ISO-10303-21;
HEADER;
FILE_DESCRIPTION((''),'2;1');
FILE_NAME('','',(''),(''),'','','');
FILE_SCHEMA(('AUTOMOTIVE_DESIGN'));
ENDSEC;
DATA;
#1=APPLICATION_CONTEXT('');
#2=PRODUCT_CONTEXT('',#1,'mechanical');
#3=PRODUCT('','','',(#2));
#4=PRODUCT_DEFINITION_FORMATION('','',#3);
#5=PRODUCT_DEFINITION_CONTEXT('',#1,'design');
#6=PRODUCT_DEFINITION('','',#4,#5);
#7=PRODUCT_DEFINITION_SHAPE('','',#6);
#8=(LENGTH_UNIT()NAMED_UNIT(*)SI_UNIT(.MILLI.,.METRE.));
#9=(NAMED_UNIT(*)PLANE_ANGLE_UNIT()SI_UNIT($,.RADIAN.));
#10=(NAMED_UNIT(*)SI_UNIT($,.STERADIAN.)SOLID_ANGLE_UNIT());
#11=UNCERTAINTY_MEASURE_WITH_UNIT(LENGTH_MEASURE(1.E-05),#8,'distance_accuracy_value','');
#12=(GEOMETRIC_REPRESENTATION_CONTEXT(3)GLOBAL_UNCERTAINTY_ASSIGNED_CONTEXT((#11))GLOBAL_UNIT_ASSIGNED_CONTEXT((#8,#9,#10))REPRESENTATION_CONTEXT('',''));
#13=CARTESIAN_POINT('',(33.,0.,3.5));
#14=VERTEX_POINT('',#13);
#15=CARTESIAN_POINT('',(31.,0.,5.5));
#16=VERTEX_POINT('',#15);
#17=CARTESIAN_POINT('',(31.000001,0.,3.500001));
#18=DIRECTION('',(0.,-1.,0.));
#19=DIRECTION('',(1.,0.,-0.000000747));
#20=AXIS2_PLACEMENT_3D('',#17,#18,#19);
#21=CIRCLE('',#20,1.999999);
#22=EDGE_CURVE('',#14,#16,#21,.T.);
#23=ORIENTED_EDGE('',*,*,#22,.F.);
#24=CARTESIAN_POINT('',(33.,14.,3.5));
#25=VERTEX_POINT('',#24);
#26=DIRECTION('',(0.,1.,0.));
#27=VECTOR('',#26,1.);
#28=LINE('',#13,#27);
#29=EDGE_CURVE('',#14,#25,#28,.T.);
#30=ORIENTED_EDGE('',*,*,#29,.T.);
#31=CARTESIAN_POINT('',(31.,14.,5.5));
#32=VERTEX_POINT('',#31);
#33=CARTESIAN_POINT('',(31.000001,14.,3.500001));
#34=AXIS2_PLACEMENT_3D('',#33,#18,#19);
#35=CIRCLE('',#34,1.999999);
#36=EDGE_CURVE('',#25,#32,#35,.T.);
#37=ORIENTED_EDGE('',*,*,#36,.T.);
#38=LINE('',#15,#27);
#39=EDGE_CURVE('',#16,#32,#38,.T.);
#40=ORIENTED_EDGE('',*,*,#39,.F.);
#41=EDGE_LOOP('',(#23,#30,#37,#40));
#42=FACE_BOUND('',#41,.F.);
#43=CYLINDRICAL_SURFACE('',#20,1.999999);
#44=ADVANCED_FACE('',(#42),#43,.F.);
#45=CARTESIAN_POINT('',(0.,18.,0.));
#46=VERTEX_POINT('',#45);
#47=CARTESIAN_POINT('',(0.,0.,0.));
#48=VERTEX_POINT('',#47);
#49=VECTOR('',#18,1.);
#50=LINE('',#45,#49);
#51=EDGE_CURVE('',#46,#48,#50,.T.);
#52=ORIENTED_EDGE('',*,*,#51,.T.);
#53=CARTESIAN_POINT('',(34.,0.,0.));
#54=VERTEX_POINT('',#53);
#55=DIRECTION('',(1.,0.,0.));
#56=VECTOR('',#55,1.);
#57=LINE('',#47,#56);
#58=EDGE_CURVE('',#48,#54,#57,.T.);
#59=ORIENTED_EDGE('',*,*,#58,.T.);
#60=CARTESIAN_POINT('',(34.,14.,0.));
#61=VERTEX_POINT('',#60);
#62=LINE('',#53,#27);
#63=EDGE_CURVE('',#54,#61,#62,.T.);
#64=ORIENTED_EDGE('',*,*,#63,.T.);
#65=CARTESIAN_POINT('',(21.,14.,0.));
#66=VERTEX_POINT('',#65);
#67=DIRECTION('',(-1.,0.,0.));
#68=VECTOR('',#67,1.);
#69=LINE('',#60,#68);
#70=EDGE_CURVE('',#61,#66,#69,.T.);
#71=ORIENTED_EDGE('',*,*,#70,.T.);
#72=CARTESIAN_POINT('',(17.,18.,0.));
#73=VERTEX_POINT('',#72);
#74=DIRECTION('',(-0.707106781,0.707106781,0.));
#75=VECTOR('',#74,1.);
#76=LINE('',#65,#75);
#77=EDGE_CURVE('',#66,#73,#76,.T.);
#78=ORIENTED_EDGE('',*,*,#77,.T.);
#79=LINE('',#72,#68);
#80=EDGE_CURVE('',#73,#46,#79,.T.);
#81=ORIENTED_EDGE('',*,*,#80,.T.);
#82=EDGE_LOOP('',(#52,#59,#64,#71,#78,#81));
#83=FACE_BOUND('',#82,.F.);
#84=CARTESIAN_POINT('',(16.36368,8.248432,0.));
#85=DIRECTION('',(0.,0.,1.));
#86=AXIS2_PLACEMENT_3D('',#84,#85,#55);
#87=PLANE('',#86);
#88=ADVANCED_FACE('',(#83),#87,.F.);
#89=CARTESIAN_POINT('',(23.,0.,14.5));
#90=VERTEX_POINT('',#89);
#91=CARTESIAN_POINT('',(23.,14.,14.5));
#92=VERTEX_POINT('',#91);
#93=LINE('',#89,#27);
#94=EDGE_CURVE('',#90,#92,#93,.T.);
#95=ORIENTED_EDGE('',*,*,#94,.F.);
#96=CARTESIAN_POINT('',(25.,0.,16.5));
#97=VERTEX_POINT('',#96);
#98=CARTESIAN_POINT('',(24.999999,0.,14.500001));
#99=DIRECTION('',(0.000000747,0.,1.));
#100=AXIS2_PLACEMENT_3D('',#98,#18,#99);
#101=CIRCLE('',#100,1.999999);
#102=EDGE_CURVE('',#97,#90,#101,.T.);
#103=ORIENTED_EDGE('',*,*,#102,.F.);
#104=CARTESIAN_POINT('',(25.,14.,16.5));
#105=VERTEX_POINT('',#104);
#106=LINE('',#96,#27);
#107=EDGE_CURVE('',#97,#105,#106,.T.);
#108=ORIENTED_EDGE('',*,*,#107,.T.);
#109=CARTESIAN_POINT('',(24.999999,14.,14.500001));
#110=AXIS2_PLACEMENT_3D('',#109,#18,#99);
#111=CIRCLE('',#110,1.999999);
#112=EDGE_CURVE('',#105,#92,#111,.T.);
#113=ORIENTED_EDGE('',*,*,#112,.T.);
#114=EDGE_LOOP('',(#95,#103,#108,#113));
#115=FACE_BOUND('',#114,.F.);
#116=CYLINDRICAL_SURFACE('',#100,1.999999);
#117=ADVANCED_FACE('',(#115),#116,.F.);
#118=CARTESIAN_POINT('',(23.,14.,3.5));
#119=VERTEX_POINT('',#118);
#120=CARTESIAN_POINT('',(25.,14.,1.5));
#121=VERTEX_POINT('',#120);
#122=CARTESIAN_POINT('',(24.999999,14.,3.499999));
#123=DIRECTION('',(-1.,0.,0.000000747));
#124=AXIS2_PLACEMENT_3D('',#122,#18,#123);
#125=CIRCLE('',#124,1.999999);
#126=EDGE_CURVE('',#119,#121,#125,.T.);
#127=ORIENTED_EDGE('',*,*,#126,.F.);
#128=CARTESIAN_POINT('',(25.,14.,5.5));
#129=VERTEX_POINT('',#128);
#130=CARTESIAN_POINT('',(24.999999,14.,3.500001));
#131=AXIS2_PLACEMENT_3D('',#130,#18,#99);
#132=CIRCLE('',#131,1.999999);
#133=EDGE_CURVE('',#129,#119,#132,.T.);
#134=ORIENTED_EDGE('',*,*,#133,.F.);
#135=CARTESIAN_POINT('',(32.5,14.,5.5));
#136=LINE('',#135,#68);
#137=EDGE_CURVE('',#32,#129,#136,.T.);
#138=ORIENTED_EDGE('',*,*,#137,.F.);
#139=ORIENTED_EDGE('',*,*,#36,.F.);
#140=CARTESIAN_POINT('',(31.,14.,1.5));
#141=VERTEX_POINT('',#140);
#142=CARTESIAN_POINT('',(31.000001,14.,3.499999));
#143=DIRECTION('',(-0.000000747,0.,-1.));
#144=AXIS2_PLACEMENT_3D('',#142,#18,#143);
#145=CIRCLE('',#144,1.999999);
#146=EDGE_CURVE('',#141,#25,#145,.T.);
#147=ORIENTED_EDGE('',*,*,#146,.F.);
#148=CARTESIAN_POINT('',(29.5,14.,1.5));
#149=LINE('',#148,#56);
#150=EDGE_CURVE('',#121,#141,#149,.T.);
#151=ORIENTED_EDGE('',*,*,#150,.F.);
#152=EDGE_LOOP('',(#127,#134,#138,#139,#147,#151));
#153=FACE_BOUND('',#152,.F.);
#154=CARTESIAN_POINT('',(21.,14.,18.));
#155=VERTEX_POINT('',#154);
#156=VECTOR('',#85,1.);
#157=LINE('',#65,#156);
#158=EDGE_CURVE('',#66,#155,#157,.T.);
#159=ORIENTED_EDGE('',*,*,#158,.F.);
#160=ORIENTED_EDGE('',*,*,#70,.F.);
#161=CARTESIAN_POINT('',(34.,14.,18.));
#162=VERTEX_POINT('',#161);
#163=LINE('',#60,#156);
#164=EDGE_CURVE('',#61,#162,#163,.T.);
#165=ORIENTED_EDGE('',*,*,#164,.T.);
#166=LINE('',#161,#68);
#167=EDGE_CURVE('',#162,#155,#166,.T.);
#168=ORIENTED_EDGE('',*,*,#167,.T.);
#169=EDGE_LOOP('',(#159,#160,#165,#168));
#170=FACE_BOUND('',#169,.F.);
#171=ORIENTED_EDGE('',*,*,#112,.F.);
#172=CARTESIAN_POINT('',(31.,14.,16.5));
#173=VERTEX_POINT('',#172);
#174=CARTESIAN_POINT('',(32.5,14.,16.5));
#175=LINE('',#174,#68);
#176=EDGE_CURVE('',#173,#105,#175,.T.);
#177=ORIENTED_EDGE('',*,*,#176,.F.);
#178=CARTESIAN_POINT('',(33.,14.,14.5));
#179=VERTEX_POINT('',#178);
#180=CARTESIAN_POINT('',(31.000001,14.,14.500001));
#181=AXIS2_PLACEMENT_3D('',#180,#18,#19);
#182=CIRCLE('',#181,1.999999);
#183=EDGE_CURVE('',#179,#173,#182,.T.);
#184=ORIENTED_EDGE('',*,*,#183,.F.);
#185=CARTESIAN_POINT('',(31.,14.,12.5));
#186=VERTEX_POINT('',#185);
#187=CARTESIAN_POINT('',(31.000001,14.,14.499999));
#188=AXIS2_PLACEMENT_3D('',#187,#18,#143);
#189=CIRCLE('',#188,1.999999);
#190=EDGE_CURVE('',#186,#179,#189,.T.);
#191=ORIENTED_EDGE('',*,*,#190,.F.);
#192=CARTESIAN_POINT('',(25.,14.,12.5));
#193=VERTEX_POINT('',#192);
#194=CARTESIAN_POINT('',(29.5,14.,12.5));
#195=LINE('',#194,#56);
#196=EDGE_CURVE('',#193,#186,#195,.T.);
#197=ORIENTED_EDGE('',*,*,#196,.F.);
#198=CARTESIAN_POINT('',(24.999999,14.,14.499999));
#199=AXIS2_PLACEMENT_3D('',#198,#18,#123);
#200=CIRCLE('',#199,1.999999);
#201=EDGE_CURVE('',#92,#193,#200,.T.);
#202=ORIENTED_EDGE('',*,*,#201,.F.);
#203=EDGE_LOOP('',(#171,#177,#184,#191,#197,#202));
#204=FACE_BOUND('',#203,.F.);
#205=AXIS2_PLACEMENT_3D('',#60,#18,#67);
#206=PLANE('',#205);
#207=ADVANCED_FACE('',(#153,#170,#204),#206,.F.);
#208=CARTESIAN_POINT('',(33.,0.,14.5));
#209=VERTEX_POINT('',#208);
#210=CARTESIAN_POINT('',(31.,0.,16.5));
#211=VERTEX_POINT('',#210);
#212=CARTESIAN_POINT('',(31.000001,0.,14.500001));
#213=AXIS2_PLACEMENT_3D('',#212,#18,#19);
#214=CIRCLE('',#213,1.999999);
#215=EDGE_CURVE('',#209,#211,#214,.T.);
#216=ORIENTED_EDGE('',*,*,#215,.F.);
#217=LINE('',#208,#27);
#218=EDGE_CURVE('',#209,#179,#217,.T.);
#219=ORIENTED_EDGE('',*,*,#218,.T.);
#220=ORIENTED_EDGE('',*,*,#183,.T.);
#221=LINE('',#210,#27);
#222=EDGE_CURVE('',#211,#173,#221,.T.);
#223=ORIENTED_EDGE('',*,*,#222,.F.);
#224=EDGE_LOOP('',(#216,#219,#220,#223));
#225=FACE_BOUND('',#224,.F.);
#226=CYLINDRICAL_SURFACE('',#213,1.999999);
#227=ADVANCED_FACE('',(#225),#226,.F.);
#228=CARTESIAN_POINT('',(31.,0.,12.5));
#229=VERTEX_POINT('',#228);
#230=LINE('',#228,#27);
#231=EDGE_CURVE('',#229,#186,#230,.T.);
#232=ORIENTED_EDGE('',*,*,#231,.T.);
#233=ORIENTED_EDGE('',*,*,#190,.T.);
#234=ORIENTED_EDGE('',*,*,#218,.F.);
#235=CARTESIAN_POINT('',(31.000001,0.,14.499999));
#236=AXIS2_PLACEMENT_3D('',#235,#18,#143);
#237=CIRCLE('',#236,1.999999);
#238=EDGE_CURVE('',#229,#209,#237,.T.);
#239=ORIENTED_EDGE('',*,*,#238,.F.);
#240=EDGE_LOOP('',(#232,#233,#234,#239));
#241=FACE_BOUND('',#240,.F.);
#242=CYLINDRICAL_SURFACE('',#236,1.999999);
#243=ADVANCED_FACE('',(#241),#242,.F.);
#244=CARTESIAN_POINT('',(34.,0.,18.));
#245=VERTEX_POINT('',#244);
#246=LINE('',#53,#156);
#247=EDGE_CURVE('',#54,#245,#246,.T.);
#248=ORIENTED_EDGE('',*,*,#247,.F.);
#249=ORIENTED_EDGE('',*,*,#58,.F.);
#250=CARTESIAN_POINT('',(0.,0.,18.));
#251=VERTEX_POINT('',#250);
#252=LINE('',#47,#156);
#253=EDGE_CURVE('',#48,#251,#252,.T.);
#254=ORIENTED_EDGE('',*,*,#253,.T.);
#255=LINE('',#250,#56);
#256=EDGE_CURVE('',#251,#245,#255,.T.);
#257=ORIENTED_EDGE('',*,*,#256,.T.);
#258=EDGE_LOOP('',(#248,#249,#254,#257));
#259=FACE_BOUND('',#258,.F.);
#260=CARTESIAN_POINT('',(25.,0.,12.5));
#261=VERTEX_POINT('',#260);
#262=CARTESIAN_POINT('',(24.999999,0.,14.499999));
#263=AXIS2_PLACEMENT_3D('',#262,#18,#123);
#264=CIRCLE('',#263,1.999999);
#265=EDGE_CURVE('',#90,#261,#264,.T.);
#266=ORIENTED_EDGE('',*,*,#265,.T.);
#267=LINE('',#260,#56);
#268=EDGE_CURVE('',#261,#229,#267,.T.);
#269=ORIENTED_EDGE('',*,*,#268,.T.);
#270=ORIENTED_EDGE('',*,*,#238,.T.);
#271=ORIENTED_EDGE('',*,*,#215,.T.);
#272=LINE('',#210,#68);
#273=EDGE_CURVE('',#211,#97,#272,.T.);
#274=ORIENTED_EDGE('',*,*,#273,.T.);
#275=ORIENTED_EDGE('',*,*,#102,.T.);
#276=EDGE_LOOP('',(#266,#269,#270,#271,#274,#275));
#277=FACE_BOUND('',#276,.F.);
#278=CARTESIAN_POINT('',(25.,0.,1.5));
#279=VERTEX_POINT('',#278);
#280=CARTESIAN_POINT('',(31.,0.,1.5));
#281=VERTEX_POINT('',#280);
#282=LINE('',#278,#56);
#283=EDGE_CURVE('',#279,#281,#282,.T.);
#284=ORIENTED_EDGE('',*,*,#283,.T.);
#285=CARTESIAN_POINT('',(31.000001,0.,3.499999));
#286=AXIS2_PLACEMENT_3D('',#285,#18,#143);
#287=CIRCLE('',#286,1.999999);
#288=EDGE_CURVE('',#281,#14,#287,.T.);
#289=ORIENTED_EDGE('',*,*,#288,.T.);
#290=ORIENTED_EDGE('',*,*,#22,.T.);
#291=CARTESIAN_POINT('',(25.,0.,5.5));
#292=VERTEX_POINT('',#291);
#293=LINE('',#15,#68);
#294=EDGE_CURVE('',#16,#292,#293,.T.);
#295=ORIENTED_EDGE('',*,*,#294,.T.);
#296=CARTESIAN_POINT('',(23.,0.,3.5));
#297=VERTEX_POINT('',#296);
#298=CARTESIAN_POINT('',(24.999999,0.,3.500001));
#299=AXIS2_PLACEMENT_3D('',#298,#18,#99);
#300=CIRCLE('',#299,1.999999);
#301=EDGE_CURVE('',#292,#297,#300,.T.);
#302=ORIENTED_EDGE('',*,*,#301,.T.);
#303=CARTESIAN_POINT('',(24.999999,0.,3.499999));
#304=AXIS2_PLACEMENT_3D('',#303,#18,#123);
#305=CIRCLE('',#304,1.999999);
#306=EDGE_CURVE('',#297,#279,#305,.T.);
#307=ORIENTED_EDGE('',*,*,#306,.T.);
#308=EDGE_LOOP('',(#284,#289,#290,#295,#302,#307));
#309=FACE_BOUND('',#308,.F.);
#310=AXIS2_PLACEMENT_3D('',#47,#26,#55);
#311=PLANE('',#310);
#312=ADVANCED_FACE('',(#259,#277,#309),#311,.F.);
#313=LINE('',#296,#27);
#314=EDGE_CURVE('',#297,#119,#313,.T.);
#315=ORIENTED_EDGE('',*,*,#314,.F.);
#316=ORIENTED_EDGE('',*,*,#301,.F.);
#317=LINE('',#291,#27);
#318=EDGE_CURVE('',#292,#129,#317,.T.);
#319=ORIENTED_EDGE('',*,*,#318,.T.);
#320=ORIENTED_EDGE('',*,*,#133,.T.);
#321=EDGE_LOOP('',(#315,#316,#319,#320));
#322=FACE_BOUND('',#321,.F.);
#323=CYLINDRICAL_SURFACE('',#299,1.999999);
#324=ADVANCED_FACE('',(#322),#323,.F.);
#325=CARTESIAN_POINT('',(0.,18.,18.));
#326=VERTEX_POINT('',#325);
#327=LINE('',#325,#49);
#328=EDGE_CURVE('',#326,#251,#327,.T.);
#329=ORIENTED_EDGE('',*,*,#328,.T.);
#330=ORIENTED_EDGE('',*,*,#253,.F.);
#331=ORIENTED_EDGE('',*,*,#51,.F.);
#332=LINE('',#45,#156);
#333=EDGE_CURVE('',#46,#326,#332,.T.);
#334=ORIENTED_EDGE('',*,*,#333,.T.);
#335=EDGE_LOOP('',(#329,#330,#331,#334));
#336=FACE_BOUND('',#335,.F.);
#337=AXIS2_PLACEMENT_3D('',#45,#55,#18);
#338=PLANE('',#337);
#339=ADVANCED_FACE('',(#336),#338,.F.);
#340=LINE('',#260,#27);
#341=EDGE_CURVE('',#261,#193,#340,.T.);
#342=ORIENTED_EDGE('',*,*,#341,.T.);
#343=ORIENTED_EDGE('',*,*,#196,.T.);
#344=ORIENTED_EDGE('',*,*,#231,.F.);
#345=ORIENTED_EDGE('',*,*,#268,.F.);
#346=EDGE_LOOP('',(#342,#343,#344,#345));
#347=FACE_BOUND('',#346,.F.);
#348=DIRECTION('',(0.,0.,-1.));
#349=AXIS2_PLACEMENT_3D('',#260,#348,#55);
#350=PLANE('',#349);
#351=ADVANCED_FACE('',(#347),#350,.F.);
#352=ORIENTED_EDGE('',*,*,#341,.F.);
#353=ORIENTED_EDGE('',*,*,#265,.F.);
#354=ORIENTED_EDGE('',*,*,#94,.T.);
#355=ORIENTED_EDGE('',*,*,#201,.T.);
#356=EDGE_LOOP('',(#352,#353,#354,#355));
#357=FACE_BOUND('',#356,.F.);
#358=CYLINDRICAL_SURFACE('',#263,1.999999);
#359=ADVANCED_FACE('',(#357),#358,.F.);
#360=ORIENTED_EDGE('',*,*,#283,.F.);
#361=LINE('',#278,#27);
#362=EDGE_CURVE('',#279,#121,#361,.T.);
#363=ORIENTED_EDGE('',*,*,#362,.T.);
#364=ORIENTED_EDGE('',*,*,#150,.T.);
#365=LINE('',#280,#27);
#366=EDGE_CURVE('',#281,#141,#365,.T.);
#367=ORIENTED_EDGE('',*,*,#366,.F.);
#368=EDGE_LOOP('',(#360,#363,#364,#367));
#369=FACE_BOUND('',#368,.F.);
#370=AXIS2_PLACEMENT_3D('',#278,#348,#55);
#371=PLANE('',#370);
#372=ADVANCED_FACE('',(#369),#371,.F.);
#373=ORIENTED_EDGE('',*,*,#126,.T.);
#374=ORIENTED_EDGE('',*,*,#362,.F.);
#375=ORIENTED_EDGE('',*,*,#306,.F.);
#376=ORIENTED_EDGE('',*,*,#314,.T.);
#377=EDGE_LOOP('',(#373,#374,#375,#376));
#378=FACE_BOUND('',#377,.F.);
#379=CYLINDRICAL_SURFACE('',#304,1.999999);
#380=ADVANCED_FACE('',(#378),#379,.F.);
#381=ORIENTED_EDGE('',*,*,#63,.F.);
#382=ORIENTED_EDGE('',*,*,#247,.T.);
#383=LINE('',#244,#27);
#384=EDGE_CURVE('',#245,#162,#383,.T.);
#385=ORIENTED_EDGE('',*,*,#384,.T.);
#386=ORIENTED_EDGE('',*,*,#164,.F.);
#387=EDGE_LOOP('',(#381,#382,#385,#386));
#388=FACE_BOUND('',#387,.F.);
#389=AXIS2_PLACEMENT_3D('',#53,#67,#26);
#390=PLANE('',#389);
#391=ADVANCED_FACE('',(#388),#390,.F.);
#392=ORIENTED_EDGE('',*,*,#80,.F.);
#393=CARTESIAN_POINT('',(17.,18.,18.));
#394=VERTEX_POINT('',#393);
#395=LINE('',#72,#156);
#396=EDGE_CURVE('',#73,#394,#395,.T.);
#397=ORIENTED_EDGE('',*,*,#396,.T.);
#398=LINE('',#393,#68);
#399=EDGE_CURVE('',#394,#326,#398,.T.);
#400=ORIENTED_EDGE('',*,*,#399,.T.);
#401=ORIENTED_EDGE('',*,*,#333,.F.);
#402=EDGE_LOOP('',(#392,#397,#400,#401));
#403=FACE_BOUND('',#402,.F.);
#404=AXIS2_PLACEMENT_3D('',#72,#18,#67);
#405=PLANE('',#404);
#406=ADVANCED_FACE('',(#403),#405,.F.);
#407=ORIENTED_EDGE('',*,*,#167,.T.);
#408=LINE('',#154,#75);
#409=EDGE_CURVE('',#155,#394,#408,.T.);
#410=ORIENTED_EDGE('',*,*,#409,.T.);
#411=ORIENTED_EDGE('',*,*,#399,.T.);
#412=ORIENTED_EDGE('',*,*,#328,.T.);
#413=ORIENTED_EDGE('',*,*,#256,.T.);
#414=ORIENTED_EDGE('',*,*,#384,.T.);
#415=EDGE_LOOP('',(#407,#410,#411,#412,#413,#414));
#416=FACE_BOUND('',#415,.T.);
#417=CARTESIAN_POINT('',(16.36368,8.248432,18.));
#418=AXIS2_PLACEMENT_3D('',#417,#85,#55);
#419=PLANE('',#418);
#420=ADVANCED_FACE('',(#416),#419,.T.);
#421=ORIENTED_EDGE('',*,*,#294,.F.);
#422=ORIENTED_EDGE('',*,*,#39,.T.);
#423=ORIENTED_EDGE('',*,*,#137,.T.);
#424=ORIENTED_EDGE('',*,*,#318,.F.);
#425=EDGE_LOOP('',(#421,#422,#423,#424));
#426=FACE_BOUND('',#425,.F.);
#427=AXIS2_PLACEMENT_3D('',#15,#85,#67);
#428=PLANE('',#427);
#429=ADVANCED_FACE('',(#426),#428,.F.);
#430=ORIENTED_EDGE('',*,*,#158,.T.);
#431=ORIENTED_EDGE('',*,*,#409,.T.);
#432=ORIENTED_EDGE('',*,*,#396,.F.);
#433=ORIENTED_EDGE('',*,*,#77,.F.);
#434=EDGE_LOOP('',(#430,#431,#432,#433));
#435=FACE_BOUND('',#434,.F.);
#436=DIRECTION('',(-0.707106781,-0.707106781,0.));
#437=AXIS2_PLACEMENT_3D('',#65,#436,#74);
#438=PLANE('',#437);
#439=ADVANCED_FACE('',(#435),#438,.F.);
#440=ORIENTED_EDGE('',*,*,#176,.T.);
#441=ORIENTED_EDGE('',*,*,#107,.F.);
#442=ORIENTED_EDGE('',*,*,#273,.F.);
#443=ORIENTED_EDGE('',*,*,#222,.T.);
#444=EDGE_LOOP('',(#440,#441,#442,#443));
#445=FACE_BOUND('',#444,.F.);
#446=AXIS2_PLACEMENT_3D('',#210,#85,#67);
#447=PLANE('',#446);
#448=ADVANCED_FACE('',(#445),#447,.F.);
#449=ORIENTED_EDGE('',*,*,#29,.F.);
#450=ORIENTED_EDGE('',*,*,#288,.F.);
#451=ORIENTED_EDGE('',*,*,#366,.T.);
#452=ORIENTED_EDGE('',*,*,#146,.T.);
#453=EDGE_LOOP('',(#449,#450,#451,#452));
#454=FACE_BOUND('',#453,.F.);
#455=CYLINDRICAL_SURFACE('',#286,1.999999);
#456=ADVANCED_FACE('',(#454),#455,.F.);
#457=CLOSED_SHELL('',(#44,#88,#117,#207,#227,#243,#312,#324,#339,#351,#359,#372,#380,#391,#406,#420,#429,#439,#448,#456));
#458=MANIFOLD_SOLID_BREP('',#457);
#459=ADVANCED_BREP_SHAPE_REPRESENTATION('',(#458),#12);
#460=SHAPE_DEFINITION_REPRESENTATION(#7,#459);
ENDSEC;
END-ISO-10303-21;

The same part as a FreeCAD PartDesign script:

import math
import FreeCAD as App
import Part
import Sketcher
from FreeCAD import Vector
Q = App.Units.Quantity


def add_polygon(sketch, points):
    """Adds a closed chain of lines whose ends are joined by coincident constraints."""
    first, n = sketch.GeometryCount, len(points)
    for a, b in zip(points, points[1:] + points[:1]):
        sketch.addGeometry(Part.LineSegment(App.Vector(*a, 0), App.Vector(*b, 0)), False)
    for i in range(n):
        sketch.addConstraint(Sketcher.Constraint("Coincident", first + i, 2, first + (i + 1) % n, 1))

doc = App.newDocument("Part")
body = doc.addObject("PartDesign::Body", "Body")

sketch1 = doc.addObject("Sketcher::SketchObject", "Sketch")
body.addObject(sketch1)
sketch1.AttachmentSupport = (doc.XY_Plane, [""])
sketch1.MapMode = "FlatFace"
add_polygon(sketch1, [(0, 18), (0, 0), (34, 0), (34, 14), (21, 14), (17, 18)])
sketch1.addConstraint(Sketcher.Constraint("Vertical", 0))
sketch1.addConstraint(Sketcher.Constraint("Horizontal", 1))
sketch1.addConstraint(Sketcher.Constraint("Vertical", 2))
sketch1.addConstraint(Sketcher.Constraint("Horizontal", 3))
sketch1.addConstraint(Sketcher.Constraint("Horizontal", 5))
sketch1.addConstraint(Sketcher.Constraint("Coincident", 0, 2, -1, 1))
sketch1.addConstraint(Sketcher.Constraint("DistanceX", 1, 1, 1, 2, Q("34 mm")))
sketch1.addConstraint(Sketcher.Constraint("DistanceX", 3, 2, 3, 1, Q("13 mm")))
sketch1.addConstraint(Sketcher.Constraint("DistanceX", 5, 2, 5, 1, Q("17 mm")))
sketch1.addConstraint(Sketcher.Constraint("DistanceY", 0, 2, 0, 1, Q("18 mm")))
sketch1.addConstraint(Sketcher.Constraint("DistanceY", 2, 1, 2, 2, Q("14 mm")))
pad1 = doc.addObject("PartDesign::Pad", "Pad")
body.addObject(pad1)
pad1.Profile = sketch1
pad1.Length = 18

sketch2 = doc.addObject("Sketcher::SketchObject", "Sketch001")
body.addObject(sketch2)
sketch2.AttachmentSupport = (doc.XZ_Plane, [""])
sketch2.MapMode = "FlatFace"
sketch2.addGeometry(Part.ArcOfCircle(Part.Circle(Vector(31, 14.5, 0), Vector(0, 0, 1), 2), math.radians(0), math.radians(90)), False)
sketch2.addGeometry(Part.LineSegment(Vector(31, 16.5, 0), Vector(25, 16.5, 0)), False)
sketch2.addGeometry(Part.ArcOfCircle(Part.Circle(Vector(25, 14.5, 0), Vector(0, 0, 1), 2), math.radians(90), math.radians(180)), False)
sketch2.addGeometry(Part.ArcOfCircle(Part.Circle(Vector(25, 14.5, 0), Vector(0, 0, 1), 2), math.radians(180), math.radians(270)), False)
sketch2.addGeometry(Part.LineSegment(Vector(25, 12.5, 0), Vector(31, 12.5, 0)), False)
sketch2.addGeometry(Part.ArcOfCircle(Part.Circle(Vector(31, 14.5, 0), Vector(0, 0, 1), 2), math.radians(-90), math.radians(0)), False)
sketch2.addGeometry(Part.ArcOfCircle(Part.Circle(Vector(25, 3.5, 0), Vector(0, 0, 1), 2), math.radians(180), math.radians(270)), False)
sketch2.addGeometry(Part.LineSegment(Vector(25, 1.5, 0), Vector(31, 1.5, 0)), False)
sketch2.addGeometry(Part.ArcOfCircle(Part.Circle(Vector(31, 3.5, 0), Vector(0, 0, 1), 2), math.radians(-90), math.radians(0)), False)
sketch2.addGeometry(Part.ArcOfCircle(Part.Circle(Vector(31, 3.5, 0), Vector(0, 0, 1), 2), math.radians(0), math.radians(90)), False)
sketch2.addGeometry(Part.LineSegment(Vector(31, 5.5, 0), Vector(25, 5.5, 0)), False)
sketch2.addGeometry(Part.ArcOfCircle(Part.Circle(Vector(25, 3.5, 0), Vector(0, 0, 1), 2), math.radians(90), math.radians(180)), False)
sketch2.addConstraint(Sketcher.Constraint("Tangent", 0, 2, 1, 1))
sketch2.addConstraint(Sketcher.Constraint("Tangent", 1, 2, 2, 1))
sketch2.addConstraint(Sketcher.Constraint("Tangent", 2, 2, 3, 1))
sketch2.addConstraint(Sketcher.Constraint("Tangent", 3, 2, 4, 1))
sketch2.addConstraint(Sketcher.Constraint("Tangent", 4, 2, 5, 1))
sketch2.addConstraint(Sketcher.Constraint("Tangent", 5, 2, 0, 1))
sketch2.addConstraint(Sketcher.Constraint("Tangent", 6, 2, 7, 1))
sketch2.addConstraint(Sketcher.Constraint("Tangent", 7, 2, 8, 1))
sketch2.addConstraint(Sketcher.Constraint("Tangent", 8, 2, 9, 1))
sketch2.addConstraint(Sketcher.Constraint("Tangent", 9, 2, 10, 1))
sketch2.addConstraint(Sketcher.Constraint("Tangent", 10, 2, 11, 1))
sketch2.addConstraint(Sketcher.Constraint("Tangent", 11, 2, 6, 1))
sketch2.addConstraint(Sketcher.Constraint("Horizontal", 1))
sketch2.addConstraint(Sketcher.Constraint("Horizontal", 4))
sketch2.addConstraint(Sketcher.Constraint("Horizontal", 7))
sketch2.addConstraint(Sketcher.Constraint("Horizontal", 10))
sketch2.addConstraint(Sketcher.Constraint("Equal", 0, 2))
sketch2.addConstraint(Sketcher.Constraint("Equal", 2, 3))
sketch2.addConstraint(Sketcher.Constraint("Equal", 5, 6))
sketch2.addConstraint(Sketcher.Constraint("Equal", 6, 8))
sketch2.addConstraint(Sketcher.Constraint("Equal", 8, 9))
sketch2.addConstraint(Sketcher.Constraint("Horizontal", 5, 3, 2, 2))
sketch2.addConstraint(Sketcher.Constraint("Horizontal", 2, 2, 5, 2))
sketch2.addConstraint(Sketcher.Constraint("Horizontal", 11, 3, 8, 2))
sketch2.addConstraint(Sketcher.Constraint("Horizontal", 8, 2, 11, 2))
sketch2.addConstraint(Sketcher.Constraint("Vertical", 3, 3, 6, 3))
sketch2.addConstraint(Sketcher.Constraint("Vertical", 5, 3, 8, 3))
sketch2.addConstraint(Sketcher.Constraint("Radius", 0, Q("1.999999 mm")))
sketch2.addConstraint(Sketcher.Constraint("DistanceX", 1, 2, 1, 1, Q("6 mm")))
sketch2.addConstraint(Sketcher.Constraint("DistanceX", -1, 1, 0, 3, Q("31.000001 mm")))
sketch2.addConstraint(Sketcher.Constraint("DistanceY", 6, 3, 3, 3, Q("11 mm")))
sketch2.addConstraint(Sketcher.Constraint("DistanceY", -1, 1, 0, 3, Q("14.500001 mm")))
pocket1 = doc.addObject("PartDesign::Pocket", "Pocket")
body.addObject(pocket1)
pocket1.Profile = sketch2
pocket1.Length = 15

doc.recompute()
